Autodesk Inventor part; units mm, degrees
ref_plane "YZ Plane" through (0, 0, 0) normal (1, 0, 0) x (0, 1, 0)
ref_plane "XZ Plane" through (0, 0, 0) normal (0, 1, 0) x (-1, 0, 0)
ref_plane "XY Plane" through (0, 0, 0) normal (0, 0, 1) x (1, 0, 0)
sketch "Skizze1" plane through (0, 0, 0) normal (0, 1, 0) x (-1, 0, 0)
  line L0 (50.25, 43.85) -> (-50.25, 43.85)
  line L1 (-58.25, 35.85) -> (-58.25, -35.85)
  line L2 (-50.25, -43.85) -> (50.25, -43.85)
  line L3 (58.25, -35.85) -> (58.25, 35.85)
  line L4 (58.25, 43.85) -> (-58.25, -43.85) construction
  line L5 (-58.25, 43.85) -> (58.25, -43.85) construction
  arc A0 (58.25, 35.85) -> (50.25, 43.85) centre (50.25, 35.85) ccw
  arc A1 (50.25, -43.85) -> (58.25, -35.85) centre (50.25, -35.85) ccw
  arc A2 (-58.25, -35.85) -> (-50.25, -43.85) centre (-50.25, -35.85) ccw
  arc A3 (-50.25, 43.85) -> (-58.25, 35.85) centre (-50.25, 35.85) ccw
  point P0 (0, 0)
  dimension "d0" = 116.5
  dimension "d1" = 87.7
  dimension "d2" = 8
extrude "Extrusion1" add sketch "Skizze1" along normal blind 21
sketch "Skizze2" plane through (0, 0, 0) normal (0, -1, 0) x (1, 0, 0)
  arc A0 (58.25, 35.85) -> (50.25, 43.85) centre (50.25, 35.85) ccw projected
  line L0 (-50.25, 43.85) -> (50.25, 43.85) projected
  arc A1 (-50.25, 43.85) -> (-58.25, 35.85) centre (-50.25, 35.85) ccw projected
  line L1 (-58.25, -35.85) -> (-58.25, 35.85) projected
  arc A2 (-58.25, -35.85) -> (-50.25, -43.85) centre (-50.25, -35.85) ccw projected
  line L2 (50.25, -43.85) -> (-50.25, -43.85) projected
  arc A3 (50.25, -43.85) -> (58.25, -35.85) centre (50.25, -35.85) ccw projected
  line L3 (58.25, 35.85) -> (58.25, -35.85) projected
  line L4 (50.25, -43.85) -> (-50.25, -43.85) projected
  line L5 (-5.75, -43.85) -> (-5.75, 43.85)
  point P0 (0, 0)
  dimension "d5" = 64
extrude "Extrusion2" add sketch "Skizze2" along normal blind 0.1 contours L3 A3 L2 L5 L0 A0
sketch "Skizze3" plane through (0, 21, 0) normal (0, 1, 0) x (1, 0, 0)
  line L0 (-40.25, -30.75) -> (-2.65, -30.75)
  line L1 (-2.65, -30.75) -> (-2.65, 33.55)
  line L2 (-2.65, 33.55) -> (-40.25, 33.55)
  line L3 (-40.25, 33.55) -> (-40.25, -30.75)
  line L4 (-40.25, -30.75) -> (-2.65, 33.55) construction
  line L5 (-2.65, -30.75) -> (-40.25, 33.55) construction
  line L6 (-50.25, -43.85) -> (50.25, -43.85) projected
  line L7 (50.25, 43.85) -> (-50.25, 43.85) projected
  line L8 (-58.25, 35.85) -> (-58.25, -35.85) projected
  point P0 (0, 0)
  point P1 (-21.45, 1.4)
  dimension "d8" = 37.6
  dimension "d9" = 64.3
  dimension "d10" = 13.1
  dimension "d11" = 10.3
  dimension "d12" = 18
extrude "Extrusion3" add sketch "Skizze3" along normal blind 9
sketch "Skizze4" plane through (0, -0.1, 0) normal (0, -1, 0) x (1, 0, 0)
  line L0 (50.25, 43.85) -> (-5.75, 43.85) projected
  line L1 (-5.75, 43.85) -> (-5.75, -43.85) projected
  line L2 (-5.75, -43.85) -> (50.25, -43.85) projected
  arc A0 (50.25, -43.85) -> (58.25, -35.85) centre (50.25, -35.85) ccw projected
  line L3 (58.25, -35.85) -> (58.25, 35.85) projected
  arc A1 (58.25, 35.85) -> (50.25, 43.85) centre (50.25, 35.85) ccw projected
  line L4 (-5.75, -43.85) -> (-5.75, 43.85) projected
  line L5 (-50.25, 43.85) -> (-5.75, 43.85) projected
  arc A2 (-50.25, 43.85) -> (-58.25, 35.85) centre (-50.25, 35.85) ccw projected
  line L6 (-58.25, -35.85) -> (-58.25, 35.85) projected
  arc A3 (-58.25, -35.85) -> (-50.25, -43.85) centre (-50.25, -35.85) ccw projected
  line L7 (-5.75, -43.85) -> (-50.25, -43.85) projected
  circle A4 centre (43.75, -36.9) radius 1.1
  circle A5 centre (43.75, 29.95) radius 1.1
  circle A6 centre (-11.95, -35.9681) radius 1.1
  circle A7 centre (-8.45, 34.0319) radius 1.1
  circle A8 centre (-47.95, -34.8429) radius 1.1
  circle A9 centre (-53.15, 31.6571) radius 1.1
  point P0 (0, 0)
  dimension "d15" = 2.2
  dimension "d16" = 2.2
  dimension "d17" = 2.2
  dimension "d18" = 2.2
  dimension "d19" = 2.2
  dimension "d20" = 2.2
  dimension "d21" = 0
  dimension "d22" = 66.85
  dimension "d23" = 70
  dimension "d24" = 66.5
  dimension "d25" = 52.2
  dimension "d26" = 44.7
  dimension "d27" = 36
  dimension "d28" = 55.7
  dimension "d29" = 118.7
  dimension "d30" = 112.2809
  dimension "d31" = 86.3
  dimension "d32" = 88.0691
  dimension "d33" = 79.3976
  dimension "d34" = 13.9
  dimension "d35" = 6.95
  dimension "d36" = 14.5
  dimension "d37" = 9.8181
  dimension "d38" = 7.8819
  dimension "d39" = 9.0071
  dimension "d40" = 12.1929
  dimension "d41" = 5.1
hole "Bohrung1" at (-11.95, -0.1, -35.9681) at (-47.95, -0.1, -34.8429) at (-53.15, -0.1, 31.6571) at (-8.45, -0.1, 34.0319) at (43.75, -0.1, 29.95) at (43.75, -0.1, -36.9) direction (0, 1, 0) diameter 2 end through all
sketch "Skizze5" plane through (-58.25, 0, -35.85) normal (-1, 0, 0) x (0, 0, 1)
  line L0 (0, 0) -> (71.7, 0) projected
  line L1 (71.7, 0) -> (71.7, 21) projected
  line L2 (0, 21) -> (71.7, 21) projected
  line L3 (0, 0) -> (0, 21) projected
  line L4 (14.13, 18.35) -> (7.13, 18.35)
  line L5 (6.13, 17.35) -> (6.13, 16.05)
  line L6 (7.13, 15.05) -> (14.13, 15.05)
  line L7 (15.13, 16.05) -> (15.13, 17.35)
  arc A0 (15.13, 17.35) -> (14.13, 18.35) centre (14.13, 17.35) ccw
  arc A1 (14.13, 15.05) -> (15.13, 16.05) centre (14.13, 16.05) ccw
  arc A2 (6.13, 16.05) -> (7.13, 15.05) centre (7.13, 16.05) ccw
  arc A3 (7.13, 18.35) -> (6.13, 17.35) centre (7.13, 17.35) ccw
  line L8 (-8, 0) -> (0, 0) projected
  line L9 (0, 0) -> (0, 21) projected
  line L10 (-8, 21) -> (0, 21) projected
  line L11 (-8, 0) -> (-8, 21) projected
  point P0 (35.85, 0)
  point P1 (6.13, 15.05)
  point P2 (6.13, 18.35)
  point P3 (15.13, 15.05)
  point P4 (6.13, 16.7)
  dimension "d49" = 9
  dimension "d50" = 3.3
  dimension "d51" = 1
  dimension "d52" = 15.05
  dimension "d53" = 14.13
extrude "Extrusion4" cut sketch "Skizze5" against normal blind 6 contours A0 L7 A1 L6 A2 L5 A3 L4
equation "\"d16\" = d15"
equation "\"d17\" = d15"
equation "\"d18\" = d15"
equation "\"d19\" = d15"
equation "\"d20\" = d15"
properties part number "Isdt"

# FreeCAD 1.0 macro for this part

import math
import FreeCAD as App
import Part
import Sketcher
Q = App.Units.Quantity


def add_polygon(sketch, points):
    """Adds a closed chain of lines whose ends are joined by coincident constraints."""
    first, n = sketch.GeometryCount, len(points)
    for a, b in zip(points, points[1:] + points[:1]):
        sketch.addGeometry(Part.LineSegment(App.Vector(*a, 0), App.Vector(*b, 0)), False)
    for i in range(n):
        sketch.addConstraint(Sketcher.Constraint("Coincident", first + i, 2, first + (i + 1) % n, 1))

doc = App.newDocument("Part")
body = doc.addObject("PartDesign::Body", "Body")

# Sketch on XZ plane
sketch1 = doc.addObject("Sketcher::SketchObject", "Sketch")
body.addObject(sketch1)
sketch1.AttachmentSupport = (doc.XZ_Plane, [""])
sketch1.MapMode = "FlatFace"
sketch1.addGeometry(Part.ArcOfCircle(Part.Circle(App.Vector(-50, 36, 0), App.Vector(0, 0, 1), 8), math.radians(90), math.radians(180)), False)
sketch1.addGeometry(Part.LineSegment(App.Vector(-50, 44, 0), App.Vector(50, 44, 0)), False)
sketch1.addGeometry(Part.ArcOfCircle(Part.Circle(App.Vector(50, 36, 0), App.Vector(0, 0, 1), 8), math.radians(0), math.radians(90)), False)
sketch1.addGeometry(Part.LineSegment(App.Vector(58, 36, 0), App.Vector(58, -36, 0)), False)
sketch1.addGeometry(Part.ArcOfCircle(Part.Circle(App.Vector(50, -36, 0), App.Vector(0, 0, 1), 8), math.radians(-90), math.radians(0)), False)
sketch1.addGeometry(Part.LineSegment(App.Vector(50, -44, 0), App.Vector(-50, -44, 0)), False)
sketch1.addGeometry(Part.ArcOfCircle(Part.Circle(App.Vector(-50, -36, 0), App.Vector(0, 0, 1), 8), math.radians(180), math.radians(270)), False)
sketch1.addGeometry(Part.LineSegment(App.Vector(-58, -36, 0), App.Vector(-58, 36, 0)), False)
sketch1.addConstraint(Sketcher.Constraint("Tangent", 0, 1, 1, 1))
sketch1.addConstraint(Sketcher.Constraint("Tangent", 1, 2, 2, 2))
sketch1.addConstraint(Sketcher.Constraint("Tangent", 2, 1, 3, 1))
sketch1.addConstraint(Sketcher.Constraint("Tangent", 3, 2, 4, 2))
sketch1.addConstraint(Sketcher.Constraint("Tangent", 4, 1, 5, 1))
sketch1.addConstraint(Sketcher.Constraint("Tangent", 5, 2, 6, 2))
sketch1.addConstraint(Sketcher.Constraint("Tangent", 6, 1, 7, 1))
sketch1.addConstraint(Sketcher.Constraint("Tangent", 7, 2, 0, 2))
sketch1.addConstraint(Sketcher.Constraint("Horizontal", 1))
sketch1.addConstraint(Sketcher.Constraint("Vertical", 3))
sketch1.addConstraint(Sketcher.Constraint("Horizontal", 5))
sketch1.addConstraint(Sketcher.Constraint("Vertical", 7))
sketch1.addConstraint(Sketcher.Constraint("Equal", 0, 2))
sketch1.addConstraint(Sketcher.Constraint("Equal", 2, 4))
sketch1.addConstraint(Sketcher.Constraint("Equal", 4, 6))
sketch1.addConstraint(Sketcher.Constraint("Symmetric", 0, 3, 4, 3, -1, 1))
sketch1.addConstraint(Sketcher.Constraint("Radius", 0, Q("8 mm")))
sketch1.addConstraint(Sketcher.Constraint("DistanceY", 4, 1, 1, 2, Q("87.7 mm")))
sketch1.addConstraint(Sketcher.Constraint("DistanceX", 1, 1, 1, 2, Q("100.5 mm")))
pad1 = doc.addObject("PartDesign::Pad", "Pad")
body.addObject(pad1)
pad1.Profile = sketch1
pad1.Length = 21
pad1.Reversed = True

# Sketch on XZ plane
sketch2 = doc.addObject("Sketcher::SketchObject", "Sketch001")
body.addObject(sketch2)
sketch2.AttachmentSupport = (doc.XZ_Plane, [""])
sketch2.MapMode = "FlatFace"
sketch2.addGeometry(Part.LineSegment(App.Vector(58, -36, 0), App.Vector(58, 36, 0)), False)
sketch2.addGeometry(Part.ArcOfCircle(Part.Circle(App.Vector(50, 36, 0), App.Vector(0, 0, 1), 8), math.radians(0), math.radians(90)), False)
sketch2.addGeometry(Part.LineSegment(App.Vector(50, 44, 0), App.Vector(-6, 44, 0)), False)
sketch2.addGeometry(Part.LineSegment(App.Vector(-6, 44, 0), App.Vector(-6, -44, 0)), False)
sketch2.addGeometry(Part.LineSegment(App.Vector(-6, -44, 0), App.Vector(50, -44, 0)), False)
sketch2.addGeometry(Part.ArcOfCircle(Part.Circle(App.Vector(50, -36, 0), App.Vector(0, 0, 1), 8), math.radians(-90), math.radians(0)), False)
sketch2.addConstraint(Sketcher.Constraint("Tangent", 0, 2, 1, 1))
sketch2.addConstraint(Sketcher.Constraint("Tangent", 1, 2, 2, 1))
sketch2.addConstraint(Sketcher.Constraint("Coincident", 2, 2, 3, 1))
sketch2.addConstraint(Sketcher.Constraint("Coincident", 3, 2, 4, 1))
sketch2.addConstraint(Sketcher.Constraint("Tangent", 4, 2, 5, 1))
sketch2.addConstraint(Sketcher.Constraint("Tangent", 5, 2, 0, 1))
sketch2.addConstraint(Sketcher.Constraint("Vertical", 0))
sketch2.addConstraint(Sketcher.Constraint("Horizontal", 2))
sketch2.addConstraint(Sketcher.Constraint("Vertical", 3))
sketch2.addConstraint(Sketcher.Constraint("Horizontal", 4))
sketch2.addConstraint(Sketcher.Constraint("Equal", 1, 5))
sketch2.addConstraint(Sketcher.Constraint("Radius", 1, Q("8 mm")))
sketch2.addConstraint(Sketcher.Constraint("DistanceX", 2, 2, 0, 2, Q("64 mm")))
sketch2.addConstraint(Sketcher.Constraint("DistanceY", 0, 1, 0, 2, Q("71.7 mm")))
sketch2.addConstraint(Sketcher.Constraint("DistanceX", -1, 1, 1, 3, Q("50.25 mm")))
sketch2.addConstraint(Sketcher.Constraint("DistanceY", -1, 1, 1, 3, Q("35.85 mm")))
pad2 = doc.addObject("PartDesign::Pad", "Pad001")
body.addObject(pad2)
pad2.Profile = sketch2
pad2.Length = 0.1

# Sketch on XZ plane
sketch3 = doc.addObject("Sketcher::SketchObject", "Sketch002")
body.addObject(sketch3)
sketch3.AttachmentSupport = (doc.XZ_Plane, [""])
sketch3.MapMode = "FlatFace"
sketch3.AttachmentOffset = App.Placement(App.Vector(0, 0, -21), App.Rotation())
add_polygon(sketch3, [(-40, -34), (-40, 31), (-3, 31), (-3, -34)])  # lines 0-3
sketch3.addConstraint(Sketcher.Constraint("Vertical", 0))
sketch3.addConstraint(Sketcher.Constraint("Horizontal", 1))
sketch3.addConstraint(Sketcher.Constraint("Vertical", 2))
sketch3.addConstraint(Sketcher.Constraint("Horizontal", 3))
sketch3.addConstraint(Sketcher.Constraint("DistanceX", 1, 1, 1, 2, Q("37.6 mm")))
sketch3.addConstraint(Sketcher.Constraint("DistanceY", 0, 1, 0, 2, Q("64.3 mm")))
sketch3.addConstraint(Sketcher.Constraint("DistanceX", 0, 2, -1, 1, Q("40.25 mm")))
sketch3.addConstraint(Sketcher.Constraint("DistanceY", -1, 1, 0, 2, Q("30.75 mm")))
pad3 = doc.addObject("PartDesign::Pad", "Pad002")
body.addObject(pad3)
pad3.Profile = sketch3
pad3.Length = 9
pad3.Reversed = True

# Sketch on XZ plane
sketch4 = doc.addObject("Sketcher::SketchObject", "Sketch003")
body.addObject(sketch4)
sketch4.AttachmentSupport = (doc.XZ_Plane, [""])
sketch4.MapMode = "FlatFace"
sketch4.AttachmentOffset = App.Placement(App.Vector(0, 0, 0.1), App.Rotation())
sketch4.addGeometry(Part.Circle(App.Vector(-11.9, -36, 0), App.Vector(0, 0, 1), 1), False)
sketch4.addGeometry(Part.Circle(App.Vector(-48, -34.8, 0), App.Vector(0, 0, 1), 1), False)
sketch4.addGeometry(Part.Circle(App.Vector(-53.1, 31.7, 0), App.Vector(0, 0, 1), 1), False)
sketch4.addGeometry(Part.Circle(App.Vector(-8.4, 34, 0), App.Vector(0, 0, 1), 1), False)
sketch4.addGeometry(Part.Circle(App.Vector(43.8, 29.9, 0), App.Vector(0, 0, 1), 1), False)
sketch4.addGeometry(Part.Circle(App.Vector(43.8, -36.9, 0), App.Vector(0, 0, 1), 1), False)
sketch4.addConstraint(Sketcher.Constraint("Equal", 0, 1))
sketch4.addConstraint(Sketcher.Constraint("Equal", 1, 2))
sketch4.addConstraint(Sketcher.Constraint("Equal", 2, 3))
sketch4.addConstraint(Sketcher.Constraint("Equal", 3, 4))
sketch4.addConstraint(Sketcher.Constraint("Equal", 4, 5))
sketch4.addConstraint(Sketcher.Constraint("Vertical", 4, 3, 5, 3))
sketch4.addConstraint(Sketcher.Constraint("Diameter", 0, Q("2 mm")))
sketch4.addConstraint(Sketcher.Constraint("DistanceX", 1, 3, 0, 3, Q("36 mm")))
sketch4.addConstraint(Sketcher.Constraint("DistanceY", 0, 3, 3, 3, Q("70 mm")))
sketch4.addConstraint(Sketcher.Constraint("DistanceY", 5, 3, -1, 1, Q("36.9 mm")))
sketch4.addConstraint(Sketcher.Constraint("DistanceX", 2, 3, 1, 3, Q("5.2 mm")))
sketch4.addConstraint(Sketcher.Constraint("DistanceY", 1, 3, 2, 3, Q("66.5 mm")))
sketch4.addConstraint(Sketcher.Constraint("DistanceX", 2, 3, 3, 3, Q("44.7 mm")))
sketch4.addConstraint(Sketcher.Constraint("DistanceX", 3, 3, 4, 3, Q("52.2 mm")))
sketch4.addConstraint(Sketcher.Constraint("DistanceX", 0, 3, -1, 1, Q("11.95 mm")))
sketch4.addConstraint(Sketcher.Constraint("DistanceY", -1, 1, 4, 3, Q("29.95 mm")))
sketch4.addConstraint(Sketcher.Constraint("DistanceY", 0, 3, -1, 1, Q("35.968 mm")))
sketch4.addConstraint(Sketcher.Constraint("DistanceY", 1, 3, -1, 1, Q("34.843 mm")))
doc.recompute()
hole = doc.addObject("PartDesign::Hole", "Hole")
body.addObject(hole)
hole.Profile = sketch4
hole.ThreadType = "None"
hole.Diameter = 2
hole.DepthType = "ThroughAll"

# Sketch on YZ plane
sketch5 = doc.addObject("Sketcher::SketchObject", "Sketch004")
body.addObject(sketch5)
sketch5.AttachmentSupport = (doc.YZ_Plane, [""])
sketch5.MapMode = "FlatFace"
sketch5.AttachmentOffset = App.Placement(App.Vector(0, 0, -58.25), App.Rotation())
sketch5.addGeometry(Part.ArcOfCircle(Part.Circle(App.Vector(17.4, -21.7, 0), App.Vector(0, 0, 1), 1), math.radians(0), math.radians(90)), False)
sketch5.addGeometry(Part.LineSegment(App.Vector(18.4, -21.7, 0), App.Vector(18.4, -28.7, 0)), False)
sketch5.addGeometry(Part.ArcOfCircle(Part.Circle(App.Vector(17.4, -28.7, 0), App.Vector(0, 0, 1), 1), math.radians(-90), math.radians(0)), False)
sketch5.addGeometry(Part.LineSegment(App.Vector(17.4, -29.7, 0), App.Vector(16.1, -29.7, 0)), False)
sketch5.addGeometry(Part.ArcOfCircle(Part.Circle(App.Vector(16.1, -28.7, 0), App.Vector(0, 0, 1), 1), math.radians(180), math.radians(270)), False)
sketch5.addGeometry(Part.LineSegment(App.Vector(15.1, -28.7, 0), App.Vector(15.1, -21.7, 0)), False)
sketch5.addGeometry(Part.ArcOfCircle(Part.Circle(App.Vector(16.1, -21.7, 0), App.Vector(0, 0, 1), 1), math.radians(90), math.radians(180)), False)
sketch5.addGeometry(Part.LineSegment(App.Vector(16.1, -20.7, 0), App.Vector(17.4, -20.7, 0)), False)
sketch5.addConstraint(Sketcher.Constraint("Tangent", 0, 1, 1, 1))
sketch5.addConstraint(Sketcher.Constraint("Tangent", 1, 2, 2, 2))
sketch5.addConstraint(Sketcher.Constraint("Tangent", 2, 1, 3, 1))
sketch5.addConstraint(Sketcher.Constraint("Tangent", 3, 2, 4, 2))
sketch5.addConstraint(Sketcher.Constraint("Tangent", 4, 1, 5, 1))
sketch5.addConstraint(Sketcher.Constraint("Tangent", 5, 2, 6, 2))
sketch5.addConstraint(Sketcher.Constraint("Tangent", 6, 1, 7, 1))
sketch5.addConstraint(Sketcher.Constraint("Tangent", 7, 2, 0, 2))
sketch5.addConstraint(Sketcher.Constraint("Vertical", 1))
sketch5.addConstraint(Sketcher.Constraint("Horizontal", 3))
sketch5.addConstraint(Sketcher.Constraint("Vertical", 5))
sketch5.addConstraint(Sketcher.Constraint("Horizontal", 7))
sketch5.addConstraint(Sketcher.Constraint("Equal", 0, 2))
sketch5.addConstraint(Sketcher.Constraint("Equal", 2, 4))
sketch5.addConstraint(Sketcher.Constraint("Equal", 4, 6))
sketch5.addConstraint(Sketcher.Constraint("Radius", 0, Q("1 mm")))
sketch5.addConstraint(Sketcher.Constraint("DistanceX", 4, 1, 1, 2, Q("3.3 mm")))
sketch5.addConstraint(Sketcher.Constraint("DistanceY", 1, 2, 1, 1, Q("7 mm")))
sketch5.addConstraint(Sketcher.Constraint("DistanceX", -1, 1, 4, 1, Q("15.05 mm")))
sketch5.addConstraint(Sketcher.Constraint("DistanceY", 0, 3, -1, 1, Q("21.72 mm")))
pocket1 = doc.addObject("PartDesign::Pocket", "Pocket")
body.addObject(pocket1)
pocket1.Profile = sketch5
pocket1.Length = 6
pocket1.Reversed = True

doc.recompute()
